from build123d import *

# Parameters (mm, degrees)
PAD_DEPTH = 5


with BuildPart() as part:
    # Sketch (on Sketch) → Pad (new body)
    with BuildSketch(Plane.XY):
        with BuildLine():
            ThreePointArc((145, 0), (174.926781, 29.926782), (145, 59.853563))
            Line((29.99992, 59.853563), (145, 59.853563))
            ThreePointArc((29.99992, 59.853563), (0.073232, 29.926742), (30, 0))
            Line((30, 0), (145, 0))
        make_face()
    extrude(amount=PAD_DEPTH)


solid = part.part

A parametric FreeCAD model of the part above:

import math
import FreeCAD as App
import Part
import Sketcher
from FreeCAD import Vector
Q = App.Units.Quantity

doc = App.newDocument("Part")
body = doc.addObject("PartDesign::Body", "Body")

# Sketch on XY plane
sketch1 = body.newObject("Sketcher::SketchObject", "Sketch")
sketch1.AttachmentSupport = (doc.getObject("XY_Plane"), [""])
sketch1.MapMode = "FlatFace"
sketch1.addGeometry([
    Part.ArcOfCircle(Part.Circle(Vector(145, 30, 0), Vector(0, 0, 1), 30), math.radians(-90), math.radians(90)),
    Part.LineSegment(Vector(145, 60, 0), Vector(30, 60, 0)),
    Part.ArcOfCircle(Part.Circle(Vector(30, 30, 0), Vector(0, 0, 1), 30), math.radians(90), math.radians(270)),
    Part.LineSegment(Vector(30, 0, 0), Vector(145, 0, 0)),
], False)
sketch1.addConstraint([
    Sketcher.Constraint("Tangent", 0, 2, 1, 1),
    Sketcher.Constraint("Coincident", 1, 2, 2, 1),
    Sketcher.Constraint("Tangent", 2, 2, 3, 1),
    Sketcher.Constraint("Tangent", 3, 2, 0, 1),
    Sketcher.Constraint("Horizontal", 1),
    Sketcher.Constraint("Horizontal", 3),
    Sketcher.Constraint("PointOnObject", 2, 2, -1),
    Sketcher.Constraint("DistanceX", 3, 1, 3, 2, Q("115 mm")),
    Sketcher.Constraint("DistanceX", -1, 1, 0, 3, Q("145 mm")),
    Sketcher.Constraint("Radius", 0, Q("29.926782 mm")),
    Sketcher.Constraint("DistanceX", 1, 2, 1, 1, Q("115.00008 mm")),
])
pad1 = body.newObject("PartDesign::Pad", "Pad")
pad1.Profile = sketch1
pad1.Length = 5

doc.recompute()
